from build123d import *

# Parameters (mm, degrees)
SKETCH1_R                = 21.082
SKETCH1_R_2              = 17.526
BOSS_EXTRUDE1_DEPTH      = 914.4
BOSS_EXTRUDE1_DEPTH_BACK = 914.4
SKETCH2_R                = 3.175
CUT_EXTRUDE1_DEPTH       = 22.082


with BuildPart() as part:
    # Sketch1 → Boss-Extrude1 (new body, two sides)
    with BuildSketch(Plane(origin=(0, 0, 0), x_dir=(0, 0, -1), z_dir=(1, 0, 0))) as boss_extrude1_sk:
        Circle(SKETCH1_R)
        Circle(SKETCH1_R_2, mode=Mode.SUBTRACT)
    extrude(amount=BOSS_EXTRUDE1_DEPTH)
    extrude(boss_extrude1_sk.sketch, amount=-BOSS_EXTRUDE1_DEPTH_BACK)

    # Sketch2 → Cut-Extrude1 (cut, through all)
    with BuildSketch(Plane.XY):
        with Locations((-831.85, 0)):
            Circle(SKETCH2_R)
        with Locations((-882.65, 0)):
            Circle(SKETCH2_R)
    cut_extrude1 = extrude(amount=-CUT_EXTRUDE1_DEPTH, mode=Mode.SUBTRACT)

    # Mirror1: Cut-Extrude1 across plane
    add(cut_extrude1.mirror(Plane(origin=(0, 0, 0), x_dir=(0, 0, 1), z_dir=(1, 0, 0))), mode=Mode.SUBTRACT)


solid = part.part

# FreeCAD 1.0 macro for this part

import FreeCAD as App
import Part
import Sketcher

V = App.Vector
Q = App.Units.Quantity

doc = App.newDocument("Part")
body = doc.addObject("PartDesign::Body", "Body")

sketch1 = body.newObject("Sketcher::SketchObject", "Sketch")
sketch1.AttachmentSupport = (doc.getObject("YZ_Plane"), [""])
sketch1.MapMode = "FlatFace"
sketch1.addGeometry([
    Part.Circle(V(0, 0, 0), V(0, 0, 1), 21),
    Part.Circle(V(0, 0, 0), V(0, 0, 1), 18),
], False)
sketch1.addConstraint([
    Sketcher.Constraint("Coincident", 0, 3, -1, 1),
    Sketcher.Constraint("Coincident", 1, 3, -1, 1),
    Sketcher.Constraint("Diameter", 0, Q("1.66 in")),
    Sketcher.Constraint("Diameter", 1, Q("1.38 in")),
])
pad1 = body.newObject("PartDesign::Pad", "Pad")
pad1.Profile = sketch1
pad1.Type = "TwoLengths"
pad1.Length = Q("36 in")
pad1.Length2 = Q("36 in")

sketch2 = body.newObject("Sketcher::SketchObject", "Sketch001")
sketch2.AttachmentSupport = (doc.getObject("XY_Plane"), [""])
sketch2.MapMode = "FlatFace"
sketch2.addGeometry([
    Part.Circle(V(-831.9, 0, 0), V(0, 0, 1), 3.2),
    Part.Circle(V(-882.6, 0, 0), V(0, 0, 1), 3.2),
], False)
sketch2.addConstraint([
    Sketcher.Constraint("Equal", 0, 1),
    Sketcher.Constraint("PointOnObject", 0, 3, -1),
    Sketcher.Constraint("PointOnObject", 1, 3, -1),
    Sketcher.Constraint("Diameter", 0, Q("0.25 in")),
    Sketcher.Constraint("DistanceX", 1, 3, 0, 3, Q("2 in")),
    Sketcher.Constraint("DistanceX", 0, 3, -1, 1, Q("32.75 in")),
])
pocket1 = body.newObject("PartDesign::Pocket", "Pocket")
pocket1.Profile = sketch2
pocket1.Type = "ThroughAll"
doc.recompute()

mirrored = body.newObject("PartDesign::Mirrored", "Mirrored")
mirrored.Originals = [pocket1]
mirrored.MirrorPlane = (doc.getObject("YZ_Plane"), [""])
body.Tip = mirrored

doc.recompute()
